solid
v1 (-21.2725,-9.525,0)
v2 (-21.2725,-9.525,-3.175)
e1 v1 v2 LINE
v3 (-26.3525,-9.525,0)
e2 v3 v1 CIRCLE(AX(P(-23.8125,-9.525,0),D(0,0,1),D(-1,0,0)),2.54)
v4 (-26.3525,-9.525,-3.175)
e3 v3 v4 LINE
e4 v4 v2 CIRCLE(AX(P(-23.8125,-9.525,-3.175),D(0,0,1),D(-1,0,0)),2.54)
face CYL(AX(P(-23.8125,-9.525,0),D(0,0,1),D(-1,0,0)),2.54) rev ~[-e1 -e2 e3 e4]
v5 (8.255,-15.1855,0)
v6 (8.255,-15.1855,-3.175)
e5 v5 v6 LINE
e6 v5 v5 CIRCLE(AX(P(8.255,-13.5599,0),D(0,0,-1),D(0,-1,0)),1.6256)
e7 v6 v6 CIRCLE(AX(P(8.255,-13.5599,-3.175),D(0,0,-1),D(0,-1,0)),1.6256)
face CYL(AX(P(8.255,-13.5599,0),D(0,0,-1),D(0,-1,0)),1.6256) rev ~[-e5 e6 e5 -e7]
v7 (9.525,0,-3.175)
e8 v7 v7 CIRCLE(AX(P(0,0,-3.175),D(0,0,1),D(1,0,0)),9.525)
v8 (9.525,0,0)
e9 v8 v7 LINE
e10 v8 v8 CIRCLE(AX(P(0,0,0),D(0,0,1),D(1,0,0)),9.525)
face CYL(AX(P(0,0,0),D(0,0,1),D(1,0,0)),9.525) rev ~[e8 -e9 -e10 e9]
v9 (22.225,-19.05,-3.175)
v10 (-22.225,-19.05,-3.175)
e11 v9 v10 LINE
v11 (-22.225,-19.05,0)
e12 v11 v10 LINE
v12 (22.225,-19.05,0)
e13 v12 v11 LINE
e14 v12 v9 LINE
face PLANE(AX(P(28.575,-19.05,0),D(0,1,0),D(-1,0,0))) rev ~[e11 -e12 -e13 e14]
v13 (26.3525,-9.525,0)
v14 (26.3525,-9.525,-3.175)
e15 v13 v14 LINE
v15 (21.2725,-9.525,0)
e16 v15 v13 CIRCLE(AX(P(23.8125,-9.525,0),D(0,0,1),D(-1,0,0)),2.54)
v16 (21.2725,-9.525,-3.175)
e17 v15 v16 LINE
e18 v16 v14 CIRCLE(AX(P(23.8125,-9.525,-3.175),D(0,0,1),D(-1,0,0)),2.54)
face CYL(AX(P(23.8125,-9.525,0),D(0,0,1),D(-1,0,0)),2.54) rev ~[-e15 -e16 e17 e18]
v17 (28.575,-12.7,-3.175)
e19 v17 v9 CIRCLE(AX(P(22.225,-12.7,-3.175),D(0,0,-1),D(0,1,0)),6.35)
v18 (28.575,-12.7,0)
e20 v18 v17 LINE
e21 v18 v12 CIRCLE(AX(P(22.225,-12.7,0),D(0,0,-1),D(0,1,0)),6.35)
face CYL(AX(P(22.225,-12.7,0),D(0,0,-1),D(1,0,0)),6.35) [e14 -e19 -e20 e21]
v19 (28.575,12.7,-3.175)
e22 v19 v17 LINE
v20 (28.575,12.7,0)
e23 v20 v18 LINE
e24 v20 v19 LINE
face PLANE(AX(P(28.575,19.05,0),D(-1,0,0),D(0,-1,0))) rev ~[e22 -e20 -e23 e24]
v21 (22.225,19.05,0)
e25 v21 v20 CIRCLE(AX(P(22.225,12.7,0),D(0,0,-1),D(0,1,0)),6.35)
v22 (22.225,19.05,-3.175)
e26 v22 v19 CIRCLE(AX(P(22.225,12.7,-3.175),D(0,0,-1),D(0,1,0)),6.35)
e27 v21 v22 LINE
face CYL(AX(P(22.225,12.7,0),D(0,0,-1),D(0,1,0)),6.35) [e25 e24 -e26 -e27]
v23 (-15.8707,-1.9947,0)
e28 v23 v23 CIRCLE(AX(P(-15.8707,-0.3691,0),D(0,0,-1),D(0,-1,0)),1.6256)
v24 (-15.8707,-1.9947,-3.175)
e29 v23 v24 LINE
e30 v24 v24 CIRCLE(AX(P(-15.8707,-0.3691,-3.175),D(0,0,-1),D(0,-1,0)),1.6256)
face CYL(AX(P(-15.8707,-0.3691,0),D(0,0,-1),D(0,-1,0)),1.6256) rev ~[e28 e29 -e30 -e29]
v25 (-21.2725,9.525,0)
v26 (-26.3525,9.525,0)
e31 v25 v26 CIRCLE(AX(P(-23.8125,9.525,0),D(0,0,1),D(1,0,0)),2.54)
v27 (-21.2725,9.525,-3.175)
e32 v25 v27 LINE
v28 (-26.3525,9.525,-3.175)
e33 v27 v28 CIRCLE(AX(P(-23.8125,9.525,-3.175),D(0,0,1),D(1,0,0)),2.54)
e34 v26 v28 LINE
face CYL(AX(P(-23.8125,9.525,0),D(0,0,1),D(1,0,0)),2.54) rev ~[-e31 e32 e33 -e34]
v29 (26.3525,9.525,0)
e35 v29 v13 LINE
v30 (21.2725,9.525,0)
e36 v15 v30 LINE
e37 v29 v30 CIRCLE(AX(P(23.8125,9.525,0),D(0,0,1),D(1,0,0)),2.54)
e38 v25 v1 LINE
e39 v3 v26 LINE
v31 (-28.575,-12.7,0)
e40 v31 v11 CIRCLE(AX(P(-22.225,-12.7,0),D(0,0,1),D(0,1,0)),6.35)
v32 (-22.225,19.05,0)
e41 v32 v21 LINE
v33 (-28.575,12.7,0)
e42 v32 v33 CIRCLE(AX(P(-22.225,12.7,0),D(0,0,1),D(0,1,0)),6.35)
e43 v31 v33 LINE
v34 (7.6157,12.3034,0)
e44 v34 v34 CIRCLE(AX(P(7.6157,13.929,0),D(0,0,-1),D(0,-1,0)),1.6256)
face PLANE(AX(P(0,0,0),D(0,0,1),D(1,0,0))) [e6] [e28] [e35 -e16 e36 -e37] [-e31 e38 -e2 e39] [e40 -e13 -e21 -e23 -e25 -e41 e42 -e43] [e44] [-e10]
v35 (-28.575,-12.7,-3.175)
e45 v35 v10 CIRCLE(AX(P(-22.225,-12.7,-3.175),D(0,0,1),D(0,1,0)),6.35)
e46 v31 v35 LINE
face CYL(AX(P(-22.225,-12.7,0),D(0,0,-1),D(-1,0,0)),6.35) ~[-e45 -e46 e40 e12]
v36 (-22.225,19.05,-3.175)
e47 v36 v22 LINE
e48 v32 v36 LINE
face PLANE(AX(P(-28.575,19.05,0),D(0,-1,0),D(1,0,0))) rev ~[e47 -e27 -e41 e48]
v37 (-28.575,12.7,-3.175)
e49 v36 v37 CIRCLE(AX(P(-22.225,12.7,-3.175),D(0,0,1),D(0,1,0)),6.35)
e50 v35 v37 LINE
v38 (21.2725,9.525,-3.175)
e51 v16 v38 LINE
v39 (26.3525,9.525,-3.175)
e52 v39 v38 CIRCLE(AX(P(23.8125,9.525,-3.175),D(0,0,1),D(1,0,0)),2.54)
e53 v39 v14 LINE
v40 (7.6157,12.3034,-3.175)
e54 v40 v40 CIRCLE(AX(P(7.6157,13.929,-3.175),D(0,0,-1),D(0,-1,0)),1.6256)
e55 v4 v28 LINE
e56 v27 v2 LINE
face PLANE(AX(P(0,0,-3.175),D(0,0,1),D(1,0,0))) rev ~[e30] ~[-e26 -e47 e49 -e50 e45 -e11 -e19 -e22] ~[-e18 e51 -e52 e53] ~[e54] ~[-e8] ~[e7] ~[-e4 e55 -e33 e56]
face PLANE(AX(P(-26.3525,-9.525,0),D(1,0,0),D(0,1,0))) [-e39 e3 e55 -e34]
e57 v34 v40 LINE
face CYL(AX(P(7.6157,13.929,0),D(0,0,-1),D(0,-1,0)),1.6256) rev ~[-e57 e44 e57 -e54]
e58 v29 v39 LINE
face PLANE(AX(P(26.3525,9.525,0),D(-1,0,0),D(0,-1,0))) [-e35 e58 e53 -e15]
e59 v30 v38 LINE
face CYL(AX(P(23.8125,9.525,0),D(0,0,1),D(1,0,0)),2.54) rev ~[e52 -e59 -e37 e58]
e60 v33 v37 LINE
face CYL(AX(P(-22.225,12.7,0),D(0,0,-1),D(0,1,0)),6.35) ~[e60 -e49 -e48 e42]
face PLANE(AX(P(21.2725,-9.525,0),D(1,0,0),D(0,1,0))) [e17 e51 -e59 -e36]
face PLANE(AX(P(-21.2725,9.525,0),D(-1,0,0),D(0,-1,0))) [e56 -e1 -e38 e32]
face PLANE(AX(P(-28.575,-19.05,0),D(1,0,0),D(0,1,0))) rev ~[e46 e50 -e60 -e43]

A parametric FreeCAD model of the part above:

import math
import FreeCAD as App
import Part
import Sketcher

V = App.Vector
Q = App.Units.Quantity


def edges_at(feature, points):
    """Names of the edges that pass closest to the given points."""
    edges = feature.Shape.Edges
    near = lambda p: min(range(len(edges)), key=lambda i: edges[i].distToShape(Part.Vertex(*p))[0])
    return sorted({f"Edge{near(p) + 1}" for p in points})


def add_polygon(sketch, points):
    """Adds a closed chain of lines whose ends are joined by coincident constraints."""
    first, n = sketch.GeometryCount, len(points)
    for a, b in zip(points, points[1:] + points[:1]):
        sketch.addGeometry(Part.LineSegment(App.Vector(*a, 0), App.Vector(*b, 0)), False)
    for i in range(n):
        sketch.addConstraint(Sketcher.Constraint("Coincident", first + i, 2, first + (i + 1) % n, 1))

doc = App.newDocument("Part")
body = doc.addObject("PartDesign::Body", "Body")

# Sketch on XY plane
sketch1 = body.newObject("Sketcher::SketchObject", "Sketch")
sketch1.AttachmentSupport = (doc.getObject("XY_Plane"), [""])
sketch1.MapMode = "FlatFace"
add_polygon(sketch1, [(28.6, 19.1), (-28.6, 19.1), (-28.6, -19.1), (28.6, -19.1)])  # lines 0-3
sketch1.addGeometry(Part.LineSegment(V(-26.4, -9.5, 0), V(-26.4, 9.5, 0)), False)  # 4
sketch1.addGeometry(Part.ArcOfCircle(Part.Circle(V(-23.8, 9.5, 0), V(0, 0, 1), 2.5), math.radians(0), math.radians(180)), False)  # 5
sketch1.addGeometry(Part.LineSegment(V(-21.3, 9.5, 0), V(-21.3, -9.5, 0)), False)  # 6
sketch1.addGeometry(Part.ArcOfCircle(Part.Circle(V(-23.8, -9.5, 0), V(0, 0, 1), 2.5), math.radians(180), math.radians(360)), False)  # 7
sketch1.addGeometry(Part.LineSegment(V(21.3, -9.5, 0), V(21.3, 9.5, 0)), False)  # 8
sketch1.addGeometry(Part.ArcOfCircle(Part.Circle(V(23.8, 9.5, 0), V(0, 0, 1), 2.5), math.radians(0), math.radians(180)), False)  # 9
sketch1.addGeometry(Part.LineSegment(V(26.4, 9.5, 0), V(26.4, -9.5, 0)), False)  # 10
sketch1.addGeometry(Part.ArcOfCircle(Part.Circle(V(23.8, -9.5, 0), V(0, 0, 1), 2.5), math.radians(180), math.radians(360)), False)  # 11
sketch1.addGeometry(Part.Circle(V(0, 0, 0), V(0, 0, 1), 9.5), False)  # 12
sketch1.addConstraint([
    Sketcher.Constraint("Tangent", 4, 2, 5, 2),
    Sketcher.Constraint("Tangent", 5, 1, 6, 1),
    Sketcher.Constraint("Tangent", 6, 2, 7, 2),
    Sketcher.Constraint("Tangent", 7, 1, 4, 1),
    Sketcher.Constraint("Tangent", 8, 2, 9, 2),
    Sketcher.Constraint("Tangent", 9, 1, 10, 1),
    Sketcher.Constraint("Tangent", 10, 2, 11, 2),
    Sketcher.Constraint("Tangent", 11, 1, 8, 1),
    Sketcher.Constraint("Horizontal", 0),
    Sketcher.Constraint("Vertical", 1),
    Sketcher.Constraint("Horizontal", 2),
    Sketcher.Constraint("Vertical", 3),
    Sketcher.Constraint("Vertical", 4),
    Sketcher.Constraint("Vertical", 6),
    Sketcher.Constraint("Vertical", 8),
    Sketcher.Constraint("Vertical", 10),
    Sketcher.Constraint("Coincident", 12, 3, -1, 1),
    Sketcher.Constraint("Equal", 7, 9),
    Sketcher.Constraint("Symmetric", 7, 3, 9, 3, -1, 1),
    Sketcher.Constraint("Symmetric", 0, 2, 2, 2, -1, 1),
    Sketcher.Constraint("Horizontal", 5, 3, 9, 3),
    Sketcher.Constraint("Horizontal", 7, 3, 11, 3),
    Sketcher.Constraint("Radius", 5, Q("0.1 in")),
    Sketcher.Constraint("Diameter", 12, Q("0.75 in")),
    Sketcher.Constraint("DistanceY", 1, 2, 1, 1, Q("1.5 in")),
    Sketcher.Constraint("DistanceX", 0, 2, 0, 1, Q("2.25 in")),
    Sketcher.Constraint("DistanceY", 4, 1, 4, 2, Q("0.75 in")),
    Sketcher.Constraint("DistanceX", 0, 2, 5, 3, Q("0.1875 in")),
])
pad1 = body.newObject("PartDesign::Pad", "Pad")
pad1.Profile = sketch1
pad1.Length = Q("0.125 in")
pad1.Reversed = True

# Sketch on XY plane
sketch2 = body.newObject("Sketcher::SketchObject", "Sketch001")
sketch2.AttachmentSupport = (doc.getObject("XY_Plane"), [""])
sketch2.MapMode = "FlatFace"
sketch2.addGeometry([
    Part.Circle(V(7.6, 13.9, 0), V(0, 0, 1), 1.6),
    Part.Circle(V(-15.9, -0.4, 0), V(0, 0, 1), 1.6),
    Part.Circle(V(8.3, -13.6, 0), V(0, 0, 1), 1.6),
], False)
sketch2.addConstraint([
    Sketcher.Constraint("Equal", 0, 1),
    Sketcher.Constraint("Equal", 1, 2),
    Sketcher.Constraint("Diameter", 0, Q("0.128 in")),
    Sketcher.Constraint("DistanceX", -1, 1, 2, 3, Q("0.325 in")),
    Sketcher.Constraint("DistanceX", -1, 1, 0, 3, 7.6157),
    Sketcher.Constraint("DistanceY", -1, 1, 0, 3, 13.929),
    Sketcher.Constraint("DistanceX", 1, 3, -1, 1, 15.8707),
    Sketcher.Constraint("DistanceY", 1, 3, -1, 1, 0.369),
    Sketcher.Constraint("DistanceY", 2, 3, -1, 1, 13.56),
])
doc.recompute()
hole = body.newObject("PartDesign::Hole", "Hole")
hole.Profile = sketch2
hole.ThreadType = "None"
hole.Diameter = Q("0.128 in")
hole.DepthType = "ThroughAll"
doc.recompute()

fillet = body.newObject("PartDesign::Fillet", "Fillet")
fillet.Base = (hole, edges_at(hole, [
    (28.575, 19.05, -1.587),
    (-28.575, 19.05, -1.587),
    (-28.575, -19.05, -1.587),
    (28.575, -19.05, -1.587),
]))
fillet.Radius = Q("0.25 in")

doc.recompute()
